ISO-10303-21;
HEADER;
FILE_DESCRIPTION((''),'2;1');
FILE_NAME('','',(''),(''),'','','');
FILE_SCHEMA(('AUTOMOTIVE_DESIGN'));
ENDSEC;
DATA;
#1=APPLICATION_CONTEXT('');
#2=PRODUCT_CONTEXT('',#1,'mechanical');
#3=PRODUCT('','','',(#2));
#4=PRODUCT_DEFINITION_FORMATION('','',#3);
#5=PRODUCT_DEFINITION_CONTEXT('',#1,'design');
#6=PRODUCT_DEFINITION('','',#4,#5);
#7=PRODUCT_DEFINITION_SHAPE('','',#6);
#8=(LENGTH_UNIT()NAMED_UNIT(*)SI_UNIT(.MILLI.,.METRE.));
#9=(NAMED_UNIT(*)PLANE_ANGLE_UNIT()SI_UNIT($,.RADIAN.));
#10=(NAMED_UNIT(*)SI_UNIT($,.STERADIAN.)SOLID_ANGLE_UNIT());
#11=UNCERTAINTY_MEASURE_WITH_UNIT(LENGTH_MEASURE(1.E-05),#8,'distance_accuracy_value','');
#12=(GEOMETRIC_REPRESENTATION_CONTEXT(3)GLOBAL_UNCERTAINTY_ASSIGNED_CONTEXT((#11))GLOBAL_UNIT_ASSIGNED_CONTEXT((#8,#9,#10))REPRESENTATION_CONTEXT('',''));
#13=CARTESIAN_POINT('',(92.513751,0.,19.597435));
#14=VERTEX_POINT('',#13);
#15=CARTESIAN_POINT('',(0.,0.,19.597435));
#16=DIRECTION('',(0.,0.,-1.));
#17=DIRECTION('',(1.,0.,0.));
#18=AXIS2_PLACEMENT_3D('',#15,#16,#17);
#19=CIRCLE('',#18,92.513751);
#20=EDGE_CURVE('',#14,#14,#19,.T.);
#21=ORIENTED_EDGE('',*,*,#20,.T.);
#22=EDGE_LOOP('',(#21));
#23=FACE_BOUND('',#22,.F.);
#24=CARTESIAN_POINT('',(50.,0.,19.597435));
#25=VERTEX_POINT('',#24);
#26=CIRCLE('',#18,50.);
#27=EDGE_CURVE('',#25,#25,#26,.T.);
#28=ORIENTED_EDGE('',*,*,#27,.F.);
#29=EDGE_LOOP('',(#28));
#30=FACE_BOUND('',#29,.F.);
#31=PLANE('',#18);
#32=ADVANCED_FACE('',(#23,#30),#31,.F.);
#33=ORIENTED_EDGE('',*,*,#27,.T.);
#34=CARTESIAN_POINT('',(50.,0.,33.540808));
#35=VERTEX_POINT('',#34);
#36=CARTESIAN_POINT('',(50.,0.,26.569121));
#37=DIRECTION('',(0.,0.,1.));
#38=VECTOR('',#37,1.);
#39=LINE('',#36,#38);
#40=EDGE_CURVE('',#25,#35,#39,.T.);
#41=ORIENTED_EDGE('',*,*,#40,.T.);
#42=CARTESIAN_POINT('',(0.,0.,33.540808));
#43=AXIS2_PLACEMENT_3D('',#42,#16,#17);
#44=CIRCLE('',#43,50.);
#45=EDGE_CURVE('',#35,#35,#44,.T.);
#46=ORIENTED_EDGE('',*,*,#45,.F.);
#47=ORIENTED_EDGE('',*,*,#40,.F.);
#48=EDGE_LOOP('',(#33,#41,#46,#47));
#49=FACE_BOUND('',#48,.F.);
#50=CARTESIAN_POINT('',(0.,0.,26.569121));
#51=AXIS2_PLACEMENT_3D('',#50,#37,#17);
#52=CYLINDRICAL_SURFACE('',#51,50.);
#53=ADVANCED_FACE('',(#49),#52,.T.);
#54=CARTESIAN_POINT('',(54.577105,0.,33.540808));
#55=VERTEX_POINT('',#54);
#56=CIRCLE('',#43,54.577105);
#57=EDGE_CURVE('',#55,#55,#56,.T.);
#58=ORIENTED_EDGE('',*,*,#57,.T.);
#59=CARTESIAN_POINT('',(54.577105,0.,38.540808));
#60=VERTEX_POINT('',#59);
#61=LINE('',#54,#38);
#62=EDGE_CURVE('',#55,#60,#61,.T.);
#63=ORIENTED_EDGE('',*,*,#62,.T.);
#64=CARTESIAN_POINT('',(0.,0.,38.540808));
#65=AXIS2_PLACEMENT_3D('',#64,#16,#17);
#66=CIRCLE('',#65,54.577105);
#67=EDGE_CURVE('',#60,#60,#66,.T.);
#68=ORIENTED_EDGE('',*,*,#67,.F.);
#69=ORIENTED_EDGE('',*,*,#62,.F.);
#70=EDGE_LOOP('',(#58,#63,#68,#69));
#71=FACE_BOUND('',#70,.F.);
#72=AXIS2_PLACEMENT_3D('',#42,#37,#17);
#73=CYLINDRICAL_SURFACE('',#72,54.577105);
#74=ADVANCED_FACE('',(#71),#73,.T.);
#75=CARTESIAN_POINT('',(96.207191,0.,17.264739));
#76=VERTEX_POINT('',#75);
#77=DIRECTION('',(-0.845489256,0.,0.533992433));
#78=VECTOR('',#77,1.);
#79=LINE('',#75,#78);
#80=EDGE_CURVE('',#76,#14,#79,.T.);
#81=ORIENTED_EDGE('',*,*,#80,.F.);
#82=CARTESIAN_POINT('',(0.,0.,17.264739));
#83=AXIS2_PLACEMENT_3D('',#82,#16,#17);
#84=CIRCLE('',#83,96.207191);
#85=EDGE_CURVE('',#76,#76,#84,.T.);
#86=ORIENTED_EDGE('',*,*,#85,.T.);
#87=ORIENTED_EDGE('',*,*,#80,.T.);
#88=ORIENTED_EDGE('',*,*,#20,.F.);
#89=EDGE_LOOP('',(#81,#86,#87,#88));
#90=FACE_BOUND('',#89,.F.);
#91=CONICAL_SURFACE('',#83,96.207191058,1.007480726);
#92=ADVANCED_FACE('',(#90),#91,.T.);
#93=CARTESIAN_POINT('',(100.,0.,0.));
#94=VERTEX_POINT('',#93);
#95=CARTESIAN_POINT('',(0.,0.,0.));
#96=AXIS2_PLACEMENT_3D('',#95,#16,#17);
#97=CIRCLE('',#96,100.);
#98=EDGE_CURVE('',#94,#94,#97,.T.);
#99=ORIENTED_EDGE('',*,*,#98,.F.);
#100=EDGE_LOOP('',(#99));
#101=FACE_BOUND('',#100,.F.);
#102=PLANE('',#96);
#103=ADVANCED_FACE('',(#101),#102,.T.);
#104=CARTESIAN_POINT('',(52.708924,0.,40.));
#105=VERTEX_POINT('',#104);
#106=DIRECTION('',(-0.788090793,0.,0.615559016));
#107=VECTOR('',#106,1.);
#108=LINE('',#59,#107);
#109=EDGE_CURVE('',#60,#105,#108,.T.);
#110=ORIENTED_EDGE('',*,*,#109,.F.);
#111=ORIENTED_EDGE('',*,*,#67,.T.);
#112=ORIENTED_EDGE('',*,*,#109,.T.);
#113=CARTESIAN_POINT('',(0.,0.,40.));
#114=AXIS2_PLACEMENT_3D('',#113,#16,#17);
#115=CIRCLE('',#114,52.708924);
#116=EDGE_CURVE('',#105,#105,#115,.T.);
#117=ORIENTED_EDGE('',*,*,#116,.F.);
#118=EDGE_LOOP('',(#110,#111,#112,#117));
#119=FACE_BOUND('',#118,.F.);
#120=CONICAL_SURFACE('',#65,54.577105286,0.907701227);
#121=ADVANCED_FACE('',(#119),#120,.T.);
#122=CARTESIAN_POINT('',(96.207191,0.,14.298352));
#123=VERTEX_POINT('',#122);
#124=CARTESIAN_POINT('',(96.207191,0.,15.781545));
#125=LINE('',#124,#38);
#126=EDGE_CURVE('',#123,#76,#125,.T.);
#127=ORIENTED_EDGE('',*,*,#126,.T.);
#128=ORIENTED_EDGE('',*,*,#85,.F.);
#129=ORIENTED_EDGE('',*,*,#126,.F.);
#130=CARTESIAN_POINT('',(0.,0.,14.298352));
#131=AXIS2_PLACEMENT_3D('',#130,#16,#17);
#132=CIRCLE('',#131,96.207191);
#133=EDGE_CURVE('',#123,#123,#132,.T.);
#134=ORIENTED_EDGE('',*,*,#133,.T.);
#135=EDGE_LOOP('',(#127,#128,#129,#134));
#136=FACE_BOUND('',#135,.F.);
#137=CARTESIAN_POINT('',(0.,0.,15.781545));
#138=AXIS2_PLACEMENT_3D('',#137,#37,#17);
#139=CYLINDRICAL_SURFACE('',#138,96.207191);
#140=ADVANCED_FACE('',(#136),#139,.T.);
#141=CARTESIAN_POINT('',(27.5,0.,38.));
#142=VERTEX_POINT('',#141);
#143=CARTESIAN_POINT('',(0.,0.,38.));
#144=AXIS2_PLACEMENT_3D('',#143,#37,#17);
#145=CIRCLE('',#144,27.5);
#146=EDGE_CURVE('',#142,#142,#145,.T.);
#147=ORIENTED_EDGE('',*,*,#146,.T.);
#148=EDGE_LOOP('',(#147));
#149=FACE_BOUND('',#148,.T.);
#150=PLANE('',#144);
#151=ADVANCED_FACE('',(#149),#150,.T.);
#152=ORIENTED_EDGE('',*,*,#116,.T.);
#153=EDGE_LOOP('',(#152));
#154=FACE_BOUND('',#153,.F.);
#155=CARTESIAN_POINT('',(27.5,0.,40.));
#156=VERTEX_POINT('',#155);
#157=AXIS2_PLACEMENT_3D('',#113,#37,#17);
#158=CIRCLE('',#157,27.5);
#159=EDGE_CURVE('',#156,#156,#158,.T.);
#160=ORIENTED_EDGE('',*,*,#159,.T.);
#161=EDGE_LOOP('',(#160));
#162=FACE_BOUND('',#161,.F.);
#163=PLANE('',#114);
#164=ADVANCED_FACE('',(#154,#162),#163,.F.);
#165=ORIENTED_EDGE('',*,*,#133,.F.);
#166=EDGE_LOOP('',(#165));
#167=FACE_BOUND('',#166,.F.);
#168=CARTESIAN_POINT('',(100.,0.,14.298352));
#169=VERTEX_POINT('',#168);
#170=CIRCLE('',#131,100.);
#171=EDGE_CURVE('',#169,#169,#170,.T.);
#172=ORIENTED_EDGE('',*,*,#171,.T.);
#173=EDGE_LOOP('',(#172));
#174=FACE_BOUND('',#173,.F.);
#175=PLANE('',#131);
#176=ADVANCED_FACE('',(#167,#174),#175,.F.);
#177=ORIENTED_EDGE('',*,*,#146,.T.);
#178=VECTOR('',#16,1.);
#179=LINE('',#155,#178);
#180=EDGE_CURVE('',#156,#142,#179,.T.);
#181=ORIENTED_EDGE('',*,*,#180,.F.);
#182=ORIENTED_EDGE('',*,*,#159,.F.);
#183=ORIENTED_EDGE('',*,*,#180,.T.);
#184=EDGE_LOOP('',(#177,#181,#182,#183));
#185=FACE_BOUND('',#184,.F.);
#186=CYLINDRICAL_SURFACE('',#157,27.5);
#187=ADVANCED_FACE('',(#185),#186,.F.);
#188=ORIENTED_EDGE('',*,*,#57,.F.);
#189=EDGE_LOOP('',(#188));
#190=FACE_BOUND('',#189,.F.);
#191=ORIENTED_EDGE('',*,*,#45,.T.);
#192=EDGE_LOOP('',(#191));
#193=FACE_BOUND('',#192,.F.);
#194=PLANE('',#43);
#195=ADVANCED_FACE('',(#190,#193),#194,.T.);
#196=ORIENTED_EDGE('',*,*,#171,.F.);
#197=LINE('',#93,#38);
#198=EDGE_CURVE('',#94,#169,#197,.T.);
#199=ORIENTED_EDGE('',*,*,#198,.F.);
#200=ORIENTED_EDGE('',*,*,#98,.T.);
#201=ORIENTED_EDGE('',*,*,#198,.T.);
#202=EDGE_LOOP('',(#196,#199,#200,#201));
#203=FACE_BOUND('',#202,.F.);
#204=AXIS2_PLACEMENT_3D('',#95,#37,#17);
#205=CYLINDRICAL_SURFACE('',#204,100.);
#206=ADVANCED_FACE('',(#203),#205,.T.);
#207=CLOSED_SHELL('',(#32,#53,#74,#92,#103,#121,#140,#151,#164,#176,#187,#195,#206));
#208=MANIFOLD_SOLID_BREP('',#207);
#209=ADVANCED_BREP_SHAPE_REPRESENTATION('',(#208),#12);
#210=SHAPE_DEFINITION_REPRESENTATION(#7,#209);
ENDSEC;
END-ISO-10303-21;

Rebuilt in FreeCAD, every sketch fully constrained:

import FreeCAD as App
import Part
import Sketcher
from FreeCAD import Vector


def add_polygon(sketch, points):
    """Adds a closed chain of lines whose ends are joined by coincident constraints."""
    first, n = sketch.GeometryCount, len(points)
    for a, b in zip(points, points[1:] + points[:1]):
        sketch.addGeometry(Part.LineSegment(App.Vector(*a, 0), App.Vector(*b, 0)), False)
    for i in range(n):
        sketch.addConstraint(Sketcher.Constraint("Coincident", first + i, 2, first + (i + 1) % n, 1))

doc = App.newDocument("Part")
params = doc.addObject("Spreadsheet::Sheet", "Params")
for row, (alias, value) in enumerate([
    ("sketch1_width", "100 mm"),
    ("sketch1_height", "5 mm"),
    ("revolution_angle", "360 deg"),
    ("sketch2_diameter", "55 mm"),
    ("pocket1_length", "2 mm"),
], start=1):
    params.set(f"A{row}", alias)
    params.set(f"B{row}", "=" + value)
    params.setAlias(f"B{row}", alias)

body = doc.addObject("PartDesign::Body", "Body")

sketch1 = body.newObject("Sketcher::SketchObject", "Sketch")
sketch1.AttachmentSupport = (doc.getObject("XZ_Plane"), [""])
sketch1.MapMode = "FlatFace"
add_polygon(sketch1, [(50, 33.5), (54.6, 33.5), (54.6, 38.5), (52.7, 40), (0, 40), (0, 17.3), (0, 14.3), (0, 0), (100, 0), (100, 14.3), (96.2, 14.3), (96.2, 17.3), (92.5, 19.6), (50, 19.6)])
sketch1.addConstraint([
    Sketcher.Constraint("Horizontal", 0),
    Sketcher.Constraint("Vertical", 1),
    Sketcher.Constraint("Horizontal", 3),
    Sketcher.Constraint("Vertical", 4),
    Sketcher.Constraint("Vertical", 5),
    Sketcher.Constraint("Vertical", 6),
    Sketcher.Constraint("Horizontal", 7),
    Sketcher.Constraint("Vertical", 8),
    Sketcher.Constraint("Horizontal", 9),
    Sketcher.Constraint("Vertical", 10),
    Sketcher.Constraint("Horizontal", 12),
    Sketcher.Constraint("Vertical", 13),
    Sketcher.Constraint("Coincident", 6, 2, -1, 1),
    Sketcher.Constraint("Horizontal", 5, 2, 8, 2),
    Sketcher.Constraint("Horizontal", 4, 2, 10, 2),
    Sketcher.Constraint("DistanceX", 7, 1, 7, 2, 100.0),
    Sketcher.Constraint("DistanceY", 1, 1, 1, 2, 5.0),
    Sketcher.Constraint("DistanceY", -1, 1, 2, 2, 40.0),
    Sketcher.Constraint("DistanceX", -1, 1, 12, 2, 50.0),
    Sketcher.Constraint("DistanceX", 9, 2, 9, 1, 3.792809),
    Sketcher.Constraint("DistanceX", 12, 2, 12, 1, 42.513751),
    Sketcher.Constraint("DistanceY", 4, 2, 4, 1, 22.735261),
    Sketcher.Constraint("DistanceY", 6, 2, 6, 1, 14.298352),
    Sketcher.Constraint("DistanceX", 0, 1, 0, 2, 4.577105),
    Sketcher.Constraint("DistanceX", 3, 2, 3, 1, 52.708924),
    Sketcher.Constraint("DistanceY", 13, 1, 13, 2, 13.943373),
    Sketcher.Constraint("DistanceY", 4, 2, 0, 2, 16.276068),
])
sketch1.setExpression("Constraints[29]", "Params.sketch1_width")
sketch1.setExpression("Constraints[30]", "Params.sketch1_height")
revolution = body.newObject("PartDesign::Revolution", "Revolution")
revolution.Profile = sketch1
revolution.ReferenceAxis = (sketch1, ["V_Axis"])
revolution.setExpression("Angle", "Params.revolution_angle")

sketch2 = body.newObject("Sketcher::SketchObject", "Sketch001")
sketch2.AttachmentSupport = (doc.getObject("XY_Plane"), [""])
sketch2.MapMode = "FlatFace"
sketch2.AttachmentOffset = App.Placement(Vector(0, 0, 40), App.Rotation())
sketch2.addGeometry(Part.Circle(Vector(0, 0, 0), Vector(0, 0, 1), 28), False)
sketch2.addConstraint([
    Sketcher.Constraint("Coincident", 0, 3, -1, 1),
    Sketcher.Constraint("Diameter", 0, 55.0),
])
sketch2.setExpression("Constraints[1]", "Params.sketch2_diameter")
pocket1 = body.newObject("PartDesign::Pocket", "Pocket")
pocket1.Profile = sketch2
pocket1.setExpression("Length", "Params.pocket1_length")

doc.recompute()
